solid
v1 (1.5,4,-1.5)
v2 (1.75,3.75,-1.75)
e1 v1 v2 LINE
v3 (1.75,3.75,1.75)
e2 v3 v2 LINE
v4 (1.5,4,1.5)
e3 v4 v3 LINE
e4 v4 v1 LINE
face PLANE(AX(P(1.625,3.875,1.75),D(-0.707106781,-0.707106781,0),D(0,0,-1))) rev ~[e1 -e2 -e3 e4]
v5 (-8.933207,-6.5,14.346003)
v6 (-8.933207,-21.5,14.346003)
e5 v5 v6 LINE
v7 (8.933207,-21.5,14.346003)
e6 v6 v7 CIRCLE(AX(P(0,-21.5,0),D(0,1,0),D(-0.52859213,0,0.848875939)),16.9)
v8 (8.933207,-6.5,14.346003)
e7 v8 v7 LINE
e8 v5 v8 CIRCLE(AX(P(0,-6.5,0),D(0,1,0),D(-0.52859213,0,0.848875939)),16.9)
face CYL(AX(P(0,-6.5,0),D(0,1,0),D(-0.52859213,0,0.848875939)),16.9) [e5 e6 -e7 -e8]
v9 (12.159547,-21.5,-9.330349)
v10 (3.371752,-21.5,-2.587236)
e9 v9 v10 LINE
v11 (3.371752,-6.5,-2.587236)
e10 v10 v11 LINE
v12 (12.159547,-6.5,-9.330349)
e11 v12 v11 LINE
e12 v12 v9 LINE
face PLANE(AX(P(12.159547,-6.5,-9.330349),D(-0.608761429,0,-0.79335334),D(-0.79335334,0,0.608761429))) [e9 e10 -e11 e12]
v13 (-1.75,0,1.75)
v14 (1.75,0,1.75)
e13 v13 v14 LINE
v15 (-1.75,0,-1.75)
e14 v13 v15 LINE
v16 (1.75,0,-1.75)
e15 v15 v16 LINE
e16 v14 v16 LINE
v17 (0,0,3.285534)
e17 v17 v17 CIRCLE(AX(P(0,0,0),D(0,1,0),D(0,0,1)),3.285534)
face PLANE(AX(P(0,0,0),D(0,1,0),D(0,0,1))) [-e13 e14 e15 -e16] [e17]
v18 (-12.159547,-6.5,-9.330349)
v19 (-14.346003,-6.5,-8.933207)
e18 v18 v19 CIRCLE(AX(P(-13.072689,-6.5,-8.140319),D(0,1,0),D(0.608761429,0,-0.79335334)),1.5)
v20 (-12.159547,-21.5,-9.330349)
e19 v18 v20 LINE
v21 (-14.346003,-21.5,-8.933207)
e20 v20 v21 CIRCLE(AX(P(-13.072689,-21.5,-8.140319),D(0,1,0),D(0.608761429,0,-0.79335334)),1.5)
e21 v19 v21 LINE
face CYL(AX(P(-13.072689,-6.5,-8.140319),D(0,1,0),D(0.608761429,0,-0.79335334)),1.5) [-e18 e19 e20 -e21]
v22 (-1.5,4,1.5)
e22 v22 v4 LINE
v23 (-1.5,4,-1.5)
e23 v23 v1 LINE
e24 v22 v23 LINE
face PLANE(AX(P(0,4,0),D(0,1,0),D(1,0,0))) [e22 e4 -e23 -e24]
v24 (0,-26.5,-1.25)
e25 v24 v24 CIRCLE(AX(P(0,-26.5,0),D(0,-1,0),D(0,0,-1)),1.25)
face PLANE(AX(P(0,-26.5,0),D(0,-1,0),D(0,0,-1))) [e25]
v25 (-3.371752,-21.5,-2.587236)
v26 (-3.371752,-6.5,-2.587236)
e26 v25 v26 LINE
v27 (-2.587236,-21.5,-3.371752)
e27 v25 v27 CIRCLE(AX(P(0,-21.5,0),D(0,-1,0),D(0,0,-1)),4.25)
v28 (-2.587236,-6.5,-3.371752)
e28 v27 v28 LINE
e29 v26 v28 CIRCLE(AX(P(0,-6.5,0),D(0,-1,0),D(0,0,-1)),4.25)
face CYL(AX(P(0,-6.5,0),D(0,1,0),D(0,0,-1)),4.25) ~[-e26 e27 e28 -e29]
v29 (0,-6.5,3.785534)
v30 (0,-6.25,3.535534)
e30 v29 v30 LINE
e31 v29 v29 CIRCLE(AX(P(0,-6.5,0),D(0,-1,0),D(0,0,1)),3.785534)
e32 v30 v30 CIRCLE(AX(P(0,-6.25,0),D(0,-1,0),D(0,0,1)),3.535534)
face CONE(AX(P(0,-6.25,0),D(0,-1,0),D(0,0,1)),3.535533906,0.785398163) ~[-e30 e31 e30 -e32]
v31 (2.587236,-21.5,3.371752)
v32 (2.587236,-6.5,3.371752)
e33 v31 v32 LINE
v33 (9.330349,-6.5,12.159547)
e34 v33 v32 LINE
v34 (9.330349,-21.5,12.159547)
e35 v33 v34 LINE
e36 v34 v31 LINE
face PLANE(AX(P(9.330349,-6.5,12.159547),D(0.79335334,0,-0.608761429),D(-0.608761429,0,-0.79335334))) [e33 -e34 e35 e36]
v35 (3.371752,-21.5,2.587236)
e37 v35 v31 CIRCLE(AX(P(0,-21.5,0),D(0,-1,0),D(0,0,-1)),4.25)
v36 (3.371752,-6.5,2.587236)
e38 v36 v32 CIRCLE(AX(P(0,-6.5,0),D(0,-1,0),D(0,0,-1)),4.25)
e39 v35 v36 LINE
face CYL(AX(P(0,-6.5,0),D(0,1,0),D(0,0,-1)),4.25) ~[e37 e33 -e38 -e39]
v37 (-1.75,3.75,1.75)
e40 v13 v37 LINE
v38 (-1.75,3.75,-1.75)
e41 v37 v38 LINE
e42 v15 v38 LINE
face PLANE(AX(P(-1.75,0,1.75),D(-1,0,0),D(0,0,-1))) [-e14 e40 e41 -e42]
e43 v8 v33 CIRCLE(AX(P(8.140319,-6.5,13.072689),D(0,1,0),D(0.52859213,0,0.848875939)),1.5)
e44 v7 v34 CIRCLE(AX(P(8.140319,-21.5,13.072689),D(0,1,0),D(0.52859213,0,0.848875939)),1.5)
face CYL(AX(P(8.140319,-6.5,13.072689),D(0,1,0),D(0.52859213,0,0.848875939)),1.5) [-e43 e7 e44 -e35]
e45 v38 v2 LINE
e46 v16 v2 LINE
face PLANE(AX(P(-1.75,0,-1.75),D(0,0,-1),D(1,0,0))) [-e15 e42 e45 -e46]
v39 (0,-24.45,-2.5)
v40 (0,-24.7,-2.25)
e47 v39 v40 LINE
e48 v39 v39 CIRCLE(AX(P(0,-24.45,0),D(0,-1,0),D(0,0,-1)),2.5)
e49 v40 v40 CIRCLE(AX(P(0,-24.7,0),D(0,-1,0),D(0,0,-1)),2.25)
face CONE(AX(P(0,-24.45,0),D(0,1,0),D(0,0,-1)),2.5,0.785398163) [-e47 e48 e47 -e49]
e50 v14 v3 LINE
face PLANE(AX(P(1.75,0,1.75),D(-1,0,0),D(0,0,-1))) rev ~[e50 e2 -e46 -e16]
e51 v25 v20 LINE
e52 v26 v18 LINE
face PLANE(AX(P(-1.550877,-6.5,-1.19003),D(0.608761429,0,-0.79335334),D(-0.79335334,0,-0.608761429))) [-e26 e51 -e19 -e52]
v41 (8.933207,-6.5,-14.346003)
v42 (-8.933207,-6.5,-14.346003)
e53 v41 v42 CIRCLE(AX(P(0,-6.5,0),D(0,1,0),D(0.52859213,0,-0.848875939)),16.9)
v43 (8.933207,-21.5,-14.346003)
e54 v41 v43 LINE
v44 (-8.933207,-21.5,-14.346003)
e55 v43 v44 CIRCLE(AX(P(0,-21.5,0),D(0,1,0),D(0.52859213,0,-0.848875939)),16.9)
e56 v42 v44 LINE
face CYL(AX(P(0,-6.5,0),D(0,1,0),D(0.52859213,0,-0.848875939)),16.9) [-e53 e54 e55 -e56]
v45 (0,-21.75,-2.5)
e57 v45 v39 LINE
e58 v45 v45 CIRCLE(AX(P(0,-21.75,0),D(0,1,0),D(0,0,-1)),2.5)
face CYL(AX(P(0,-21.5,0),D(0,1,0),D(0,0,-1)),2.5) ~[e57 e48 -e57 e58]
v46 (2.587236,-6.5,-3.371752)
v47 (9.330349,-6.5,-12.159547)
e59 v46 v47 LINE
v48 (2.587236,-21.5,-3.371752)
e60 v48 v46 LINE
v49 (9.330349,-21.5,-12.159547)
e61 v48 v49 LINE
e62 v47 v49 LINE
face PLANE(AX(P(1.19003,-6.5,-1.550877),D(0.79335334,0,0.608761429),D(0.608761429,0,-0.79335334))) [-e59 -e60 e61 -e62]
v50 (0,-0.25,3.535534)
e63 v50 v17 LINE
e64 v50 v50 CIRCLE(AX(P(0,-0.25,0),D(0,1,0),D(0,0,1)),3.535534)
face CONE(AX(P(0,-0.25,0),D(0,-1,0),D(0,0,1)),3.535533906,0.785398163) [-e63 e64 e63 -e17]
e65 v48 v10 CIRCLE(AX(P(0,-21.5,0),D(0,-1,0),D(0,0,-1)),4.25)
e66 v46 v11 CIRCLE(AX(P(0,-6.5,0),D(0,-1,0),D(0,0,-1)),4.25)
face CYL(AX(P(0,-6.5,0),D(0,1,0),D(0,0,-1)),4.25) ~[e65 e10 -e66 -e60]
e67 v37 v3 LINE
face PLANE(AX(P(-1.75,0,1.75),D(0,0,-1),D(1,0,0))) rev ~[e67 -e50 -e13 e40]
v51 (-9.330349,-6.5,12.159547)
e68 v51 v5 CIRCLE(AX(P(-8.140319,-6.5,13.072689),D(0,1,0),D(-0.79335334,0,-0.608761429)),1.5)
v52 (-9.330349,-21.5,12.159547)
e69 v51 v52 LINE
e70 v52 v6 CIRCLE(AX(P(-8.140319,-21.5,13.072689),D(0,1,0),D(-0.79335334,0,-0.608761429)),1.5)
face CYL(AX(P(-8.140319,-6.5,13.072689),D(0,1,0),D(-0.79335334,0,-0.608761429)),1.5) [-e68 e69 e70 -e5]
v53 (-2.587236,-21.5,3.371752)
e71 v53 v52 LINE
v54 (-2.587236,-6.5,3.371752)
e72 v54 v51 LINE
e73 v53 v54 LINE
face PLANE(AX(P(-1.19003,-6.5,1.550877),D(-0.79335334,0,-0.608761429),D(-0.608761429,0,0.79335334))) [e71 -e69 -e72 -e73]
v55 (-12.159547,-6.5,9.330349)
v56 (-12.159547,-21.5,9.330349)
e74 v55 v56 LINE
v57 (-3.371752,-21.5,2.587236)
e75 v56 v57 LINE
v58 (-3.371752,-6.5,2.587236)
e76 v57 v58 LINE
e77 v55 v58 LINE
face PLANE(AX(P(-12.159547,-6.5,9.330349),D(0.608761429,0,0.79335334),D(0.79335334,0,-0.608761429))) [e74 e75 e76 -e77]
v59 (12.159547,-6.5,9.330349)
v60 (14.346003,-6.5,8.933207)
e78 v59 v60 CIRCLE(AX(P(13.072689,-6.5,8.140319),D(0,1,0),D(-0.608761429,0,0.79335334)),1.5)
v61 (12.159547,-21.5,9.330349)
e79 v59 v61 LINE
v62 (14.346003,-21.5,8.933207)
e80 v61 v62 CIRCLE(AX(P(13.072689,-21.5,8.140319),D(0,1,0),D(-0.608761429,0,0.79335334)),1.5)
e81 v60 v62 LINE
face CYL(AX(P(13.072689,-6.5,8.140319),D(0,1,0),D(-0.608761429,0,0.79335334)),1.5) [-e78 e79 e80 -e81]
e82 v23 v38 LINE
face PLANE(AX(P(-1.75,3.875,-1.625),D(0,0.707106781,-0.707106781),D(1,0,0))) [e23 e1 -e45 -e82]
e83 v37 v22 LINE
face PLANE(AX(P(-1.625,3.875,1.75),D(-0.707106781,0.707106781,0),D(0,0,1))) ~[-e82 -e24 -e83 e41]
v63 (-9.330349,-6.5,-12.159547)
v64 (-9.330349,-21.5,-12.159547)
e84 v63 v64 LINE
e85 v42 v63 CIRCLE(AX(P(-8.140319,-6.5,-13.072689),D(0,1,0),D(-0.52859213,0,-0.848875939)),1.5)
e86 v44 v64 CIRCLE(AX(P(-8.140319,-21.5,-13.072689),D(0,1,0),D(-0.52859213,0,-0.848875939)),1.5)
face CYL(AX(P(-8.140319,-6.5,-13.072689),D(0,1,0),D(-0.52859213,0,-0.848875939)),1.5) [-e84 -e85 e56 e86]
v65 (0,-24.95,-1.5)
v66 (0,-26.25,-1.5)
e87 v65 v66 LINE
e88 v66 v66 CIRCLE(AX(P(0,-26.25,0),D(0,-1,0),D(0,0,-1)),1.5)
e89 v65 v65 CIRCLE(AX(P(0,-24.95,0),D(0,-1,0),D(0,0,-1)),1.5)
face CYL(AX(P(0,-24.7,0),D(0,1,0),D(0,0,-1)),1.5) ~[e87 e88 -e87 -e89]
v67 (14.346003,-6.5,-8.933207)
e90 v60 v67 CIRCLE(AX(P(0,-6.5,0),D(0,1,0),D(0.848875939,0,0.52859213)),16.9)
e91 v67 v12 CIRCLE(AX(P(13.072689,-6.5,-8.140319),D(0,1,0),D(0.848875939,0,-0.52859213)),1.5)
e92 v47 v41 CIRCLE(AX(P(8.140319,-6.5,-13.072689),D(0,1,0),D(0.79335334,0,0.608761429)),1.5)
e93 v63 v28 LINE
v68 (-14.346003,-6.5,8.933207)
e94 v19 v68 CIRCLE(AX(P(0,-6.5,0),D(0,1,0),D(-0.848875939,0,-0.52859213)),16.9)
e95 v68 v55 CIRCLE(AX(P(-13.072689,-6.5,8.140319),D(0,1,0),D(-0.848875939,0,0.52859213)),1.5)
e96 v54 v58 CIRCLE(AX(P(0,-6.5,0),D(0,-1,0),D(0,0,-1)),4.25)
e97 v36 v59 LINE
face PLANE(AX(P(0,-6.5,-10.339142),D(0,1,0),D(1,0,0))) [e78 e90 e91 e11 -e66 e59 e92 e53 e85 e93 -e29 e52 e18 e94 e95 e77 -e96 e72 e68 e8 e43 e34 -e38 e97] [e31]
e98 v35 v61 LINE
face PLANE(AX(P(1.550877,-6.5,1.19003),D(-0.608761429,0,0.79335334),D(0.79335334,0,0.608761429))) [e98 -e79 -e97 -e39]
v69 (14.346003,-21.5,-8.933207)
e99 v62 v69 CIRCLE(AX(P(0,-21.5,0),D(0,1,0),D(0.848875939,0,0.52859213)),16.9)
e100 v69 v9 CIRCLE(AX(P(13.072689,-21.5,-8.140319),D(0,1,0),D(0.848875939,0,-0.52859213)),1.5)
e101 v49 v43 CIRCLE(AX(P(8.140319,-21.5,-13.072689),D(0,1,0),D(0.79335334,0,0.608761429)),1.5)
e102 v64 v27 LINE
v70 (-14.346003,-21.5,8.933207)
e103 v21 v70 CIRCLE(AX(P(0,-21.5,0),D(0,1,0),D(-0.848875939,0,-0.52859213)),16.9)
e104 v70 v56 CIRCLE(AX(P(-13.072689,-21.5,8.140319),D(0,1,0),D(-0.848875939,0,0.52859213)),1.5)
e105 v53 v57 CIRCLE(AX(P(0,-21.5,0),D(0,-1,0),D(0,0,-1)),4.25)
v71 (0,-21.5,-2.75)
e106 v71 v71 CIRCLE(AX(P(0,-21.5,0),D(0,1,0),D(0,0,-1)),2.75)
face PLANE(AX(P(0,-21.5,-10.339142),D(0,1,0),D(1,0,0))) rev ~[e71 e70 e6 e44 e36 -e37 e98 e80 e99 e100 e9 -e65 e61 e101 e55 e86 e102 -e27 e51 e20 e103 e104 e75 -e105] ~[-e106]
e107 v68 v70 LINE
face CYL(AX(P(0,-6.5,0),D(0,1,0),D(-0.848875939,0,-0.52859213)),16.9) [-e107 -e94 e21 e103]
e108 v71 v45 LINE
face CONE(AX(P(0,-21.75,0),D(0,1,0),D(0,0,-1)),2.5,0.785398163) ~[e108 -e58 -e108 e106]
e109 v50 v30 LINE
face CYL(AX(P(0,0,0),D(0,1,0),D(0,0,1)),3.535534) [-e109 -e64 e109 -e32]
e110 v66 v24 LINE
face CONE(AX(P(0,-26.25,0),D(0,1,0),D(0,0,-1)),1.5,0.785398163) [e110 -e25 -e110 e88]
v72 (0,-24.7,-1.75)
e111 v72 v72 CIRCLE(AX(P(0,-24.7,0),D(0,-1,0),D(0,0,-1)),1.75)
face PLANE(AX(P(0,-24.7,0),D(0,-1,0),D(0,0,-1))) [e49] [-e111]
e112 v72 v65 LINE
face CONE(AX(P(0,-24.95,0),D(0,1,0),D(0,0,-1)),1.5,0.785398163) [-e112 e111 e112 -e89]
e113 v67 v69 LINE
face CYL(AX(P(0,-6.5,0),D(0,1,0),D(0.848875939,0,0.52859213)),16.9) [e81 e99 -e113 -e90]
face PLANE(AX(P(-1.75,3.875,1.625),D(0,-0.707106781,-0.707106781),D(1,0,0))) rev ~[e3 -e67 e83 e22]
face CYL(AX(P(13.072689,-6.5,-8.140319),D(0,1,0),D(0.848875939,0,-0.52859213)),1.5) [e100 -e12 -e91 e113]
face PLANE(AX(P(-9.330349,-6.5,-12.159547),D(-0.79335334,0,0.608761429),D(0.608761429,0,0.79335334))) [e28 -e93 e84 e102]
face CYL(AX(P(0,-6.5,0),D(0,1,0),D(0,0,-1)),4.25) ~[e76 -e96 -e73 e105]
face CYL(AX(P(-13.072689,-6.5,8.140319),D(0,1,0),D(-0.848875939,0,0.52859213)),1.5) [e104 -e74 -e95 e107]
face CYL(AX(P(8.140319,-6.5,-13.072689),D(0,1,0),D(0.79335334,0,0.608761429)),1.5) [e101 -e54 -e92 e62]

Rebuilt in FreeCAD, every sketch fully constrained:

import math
import FreeCAD as App
import Part
import Sketcher
Q = App.Units.Quantity


def edges_at(feature, points):
    """Names of the edges that pass closest to the given points."""
    edges = feature.Shape.Edges
    near = lambda p: min(range(len(edges)), key=lambda i: edges[i].distToShape(Part.Vertex(*p))[0])
    return sorted({f"Edge{near(p) + 1}" for p in points})


def add_polygon(sketch, points):
    """Adds a closed chain of lines whose ends are joined by coincident constraints."""
    first, n = sketch.GeometryCount, len(points)
    for a, b in zip(points, points[1:] + points[:1]):
        sketch.addGeometry(Part.LineSegment(App.Vector(*a, 0), App.Vector(*b, 0)), False)
    for i in range(n):
        sketch.addConstraint(Sketcher.Constraint("Coincident", first + i, 2, first + (i + 1) % n, 1))

doc = App.newDocument("Part")
body = doc.addObject("PartDesign::Body", "Body")

# Sketch on XZ plane
sketch1 = body.newObject("Sketcher::SketchObject", "Sketch")
sketch1.AttachmentSupport = (doc.getObject("XZ_Plane"), [""])
sketch1.MapMode = "FlatFace"
sketch1.addGeometry(Part.Circle(App.Vector(0, 0, 0), App.Vector(0, 0, 1), 3.5), False)
sketch1.addConstraint([
    Sketcher.Constraint("Coincident", 0, 3, -1, 1),
    Sketcher.Constraint("Diameter", 0, 7.071068),
])
pad1 = body.newObject("PartDesign::Pad", "Pad")
pad1.Profile = sketch1
pad1.Length = 6.5

# Sketch on XZ plane
sketch2 = body.newObject("Sketcher::SketchObject", "Sketch001")
sketch2.AttachmentSupport = (doc.getObject("XZ_Plane"), [""])
sketch2.MapMode = "FlatFace"
add_polygon(sketch2, [(-1.8, -1.8), (-1.8, 1.8), (1.8, 1.8), (1.8, -1.8)])  # lines 0-3
sketch2.addConstraint([
    Sketcher.Constraint("Vertical", 0),
    Sketcher.Constraint("Horizontal", 1),
    Sketcher.Constraint("Vertical", 2),
    Sketcher.Constraint("Horizontal", 3),
    Sketcher.Constraint("Symmetric", 0, 2, 2, 2, -1, 1),
    Sketcher.Constraint("Equal", 3, 0),
    Sketcher.Constraint("DistanceX", 1, 1, 1, 2, 3.5),
])
pad2 = body.newObject("PartDesign::Pad", "Pad001")
pad2.Profile = sketch2
pad2.Length = 4
pad2.Reversed = True

# Sketch on XZ plane
sketch3 = body.newObject("Sketcher::SketchObject", "Sketch002")
sketch3.AttachmentSupport = (doc.getObject("XZ_Plane"), [""])
sketch3.MapMode = "FlatFace"
sketch3.AttachmentOffset = App.Placement(App.Vector(0, 0, 6.5), App.Rotation())
sketch3.addGeometry(Part.Circle(App.Vector(0, 0, 0), App.Vector(0, 0, 1), 4.2), False)
sketch3.addConstraint([
    Sketcher.Constraint("Coincident", 0, 3, -1, 1),
    Sketcher.Constraint("Diameter", 0, 8.5),
])
pad3 = body.newObject("PartDesign::Pad", "Pad002")
pad3.Profile = sketch3
pad3.Length = 15

# Sketch on XZ plane
sketch4 = body.newObject("Sketcher::SketchObject", "Sketch003")
sketch4.AttachmentSupport = (doc.getObject("XZ_Plane"), [""])
sketch4.MapMode = "FlatFace"
sketch4.AttachmentOffset = App.Placement(App.Vector(0, 0, 21.5), App.Rotation())
sketch4.addGeometry(Part.Circle(App.Vector(0, 0, 0), App.Vector(0, 0, 1), 2.5), False)
sketch4.addConstraint([
    Sketcher.Constraint("Coincident", 0, 3, -1, 1),
    Sketcher.Constraint("Diameter", 0, 5.0),
])
pad4 = body.newObject("PartDesign::Pad", "Pad003")
pad4.Profile = sketch4
pad4.Length = 3.2

# Sketch on XZ plane
sketch5 = body.newObject("Sketcher::SketchObject", "Sketch004")
sketch5.AttachmentSupport = (doc.getObject("XZ_Plane"), [""])
sketch5.MapMode = "FlatFace"
sketch5.AttachmentOffset = App.Placement(App.Vector(0, 0, 24.7), App.Rotation())
sketch5.addGeometry(Part.Circle(App.Vector(0, 0, 0), App.Vector(0, 0, 1), 1.5), False)
sketch5.addConstraint([
    Sketcher.Constraint("Coincident", 0, 3, -1, 1),
    Sketcher.Constraint("Diameter", 0, 3.0),
])
pad5 = body.newObject("PartDesign::Pad", "Pad004")
pad5.Profile = sketch5
pad5.Length = 1.8

# Sketch on XZ plane
sketch6 = body.newObject("Sketcher::SketchObject", "Sketch005")
sketch6.AttachmentSupport = (doc.getObject("XZ_Plane"), [""])
sketch6.MapMode = "FlatFace"
sketch6.AttachmentOffset = App.Placement(App.Vector(0, 0, 6.5), App.Rotation())
sketch6.addGeometry([
    Part.LineSegment(App.Vector(-9.3, -12.2, 0), App.Vector(-1.2, -1.6, 0)),  # 0
    Part.ArcOfCircle(Part.Circle(App.Vector(0, -2.5, 0), App.Vector(0, 0, 1), 1.5), math.radians(38), math.radians(142)),  # 1
    Part.LineSegment(App.Vector(1.2, -1.6, 0), App.Vector(9.3, -12.2, 0)),  # 2
    Part.ArcOfCircle(Part.Circle(App.Vector(8.1, -13.1, 0), App.Vector(0, 0, 1), 1.5), math.radians(-58), math.radians(38)),  # 3
    Part.ArcOfCircle(Part.Circle(App.Vector(0, 0, 0), App.Vector(0, 0, 1), 16.9), math.radians(-122), math.radians(-58)),  # 4
    Part.ArcOfCircle(Part.Circle(App.Vector(-8.1, -13.1, 0), App.Vector(0, 0, 1), 1.5), math.radians(142), math.radians(238)),  # 5
    Part.LineSegment(App.Vector(12.2, -9.3, 0), App.Vector(1.6, -1.2, 0)),  # 6
    Part.ArcOfCircle(Part.Circle(App.Vector(2.5, 0, 0), App.Vector(0, 0, 1), 1.5), math.radians(128), math.radians(232)),  # 7
    Part.LineSegment(App.Vector(1.6, 1.2, 0), App.Vector(12.2, 9.3, 0)),  # 8
    Part.ArcOfCircle(Part.Circle(App.Vector(13.1, 8.1, 0), App.Vector(0, 0, 1), 1.5), math.radians(32), math.radians(128)),  # 9
    Part.ArcOfCircle(Part.Circle(App.Vector(0, 0, 0), App.Vector(0, 0, 1), 16.9), math.radians(-32), math.radians(32)),  # 10
    Part.ArcOfCircle(Part.Circle(App.Vector(13.1, -8.1, 0), App.Vector(0, 0, 1), 1.5), math.radians(-128), math.radians(-32)),  # 11
    Part.LineSegment(App.Vector(9.3, 12.2, 0), App.Vector(1.2, 1.6, 0)),  # 12
    Part.ArcOfCircle(Part.Circle(App.Vector(0, 2.5, 0), App.Vector(0, 0, 1), 1.5), math.radians(-142), math.radians(-38)),  # 13
    Part.LineSegment(App.Vector(-1.2, 1.6, 0), App.Vector(-9.3, 12.2, 0)),  # 14
    Part.ArcOfCircle(Part.Circle(App.Vector(-8.1, 13.1, 0), App.Vector(0, 0, 1), 1.5), math.radians(122), math.radians(218)),  # 15
    Part.ArcOfCircle(Part.Circle(App.Vector(0, 0, 0), App.Vector(0, 0, 1), 16.9), math.radians(58), math.radians(122)),  # 16
    Part.ArcOfCircle(Part.Circle(App.Vector(8.1, 13.1, 0), App.Vector(0, 0, 1), 1.5), math.radians(-38), math.radians(58)),  # 17
    Part.LineSegment(App.Vector(-12.2, 9.3, 0), App.Vector(-1.6, 1.2, 0)),  # 18
    Part.ArcOfCircle(Part.Circle(App.Vector(-2.5, 0, 0), App.Vector(0, 0, 1), 1.5), math.radians(-52), math.radians(52)),  # 19
    Part.LineSegment(App.Vector(-1.6, -1.2, 0), App.Vector(-12.2, -9.3, 0)),  # 20
    Part.ArcOfCircle(Part.Circle(App.Vector(-13.1, -8.1, 0), App.Vector(0, 0, 1), 1.5), math.radians(-148), math.radians(-52)),  # 21
    Part.ArcOfCircle(Part.Circle(App.Vector(0, 0, 0), App.Vector(0, 0, 1), 16.9), math.radians(148), math.radians(212)),  # 22
    Part.ArcOfCircle(Part.Circle(App.Vector(-13.1, 8.1, 0), App.Vector(0, 0, 1), 1.5), math.radians(52), math.radians(148)),  # 23
], False)
sketch6.addConstraint([
    Sketcher.Constraint("Tangent", 0, 2, 1, 2),
    Sketcher.Constraint("Tangent", 1, 1, 2, 1),
    Sketcher.Constraint("Tangent", 2, 2, 3, 2),
    Sketcher.Constraint("Tangent", 3, 1, 4, 2),
    Sketcher.Constraint("Tangent", 4, 1, 5, 2),
    Sketcher.Constraint("Tangent", 5, 1, 0, 1),
    Sketcher.Constraint("Tangent", 6, 2, 7, 2),
    Sketcher.Constraint("Tangent", 7, 1, 8, 1),
    Sketcher.Constraint("Tangent", 8, 2, 9, 2),
    Sketcher.Constraint("Tangent", 9, 1, 10, 2),
    Sketcher.Constraint("Tangent", 10, 1, 11, 2),
    Sketcher.Constraint("Tangent", 11, 1, 6, 1),
    Sketcher.Constraint("Tangent", 12, 2, 13, 2),
    Sketcher.Constraint("Tangent", 13, 1, 14, 1),
    Sketcher.Constraint("Tangent", 14, 2, 15, 2),
    Sketcher.Constraint("Tangent", 15, 1, 16, 2),
    Sketcher.Constraint("Tangent", 16, 1, 17, 2),
    Sketcher.Constraint("Tangent", 17, 1, 12, 1),
    Sketcher.Constraint("Tangent", 18, 2, 19, 2),
    Sketcher.Constraint("Tangent", 19, 1, 20, 1),
    Sketcher.Constraint("Tangent", 20, 2, 21, 2),
    Sketcher.Constraint("Tangent", 21, 1, 22, 2),
    Sketcher.Constraint("Tangent", 22, 1, 23, 2),
    Sketcher.Constraint("Tangent", 23, 1, 18, 1),
    Sketcher.Constraint("Coincident", 4, 3, -1, 1),
    Sketcher.Constraint("Coincident", 10, 3, -1, 1),
    Sketcher.Constraint("Coincident", 16, 3, -1, 1),
    Sketcher.Constraint("Coincident", 22, 3, -1, 1),
    Sketcher.Constraint("Equal", 1, 3),
    Sketcher.Constraint("Equal", 3, 5),
    Sketcher.Constraint("Equal", 5, 7),
    Sketcher.Constraint("Equal", 7, 9),
    Sketcher.Constraint("Equal", 4, 10),
    Sketcher.Constraint("Equal", 9, 11),
    Sketcher.Constraint("Equal", 11, 13),
    Sketcher.Constraint("Equal", 13, 15),
    Sketcher.Constraint("Equal", 10, 16),
    Sketcher.Constraint("Equal", 15, 17),
    Sketcher.Constraint("Equal", 17, 19),
    Sketcher.Constraint("Equal", 19, 21),
    Sketcher.Constraint("Equal", 16, 22),
    Sketcher.Constraint("Equal", 21, 23),
    Sketcher.Constraint("Symmetric", 1, 3, 13, 3, -1, 1),
    Sketcher.Constraint("Symmetric", 7, 3, 19, 3, -1, 1),
    Sketcher.Constraint("Symmetric", 0, 2, 1, 1, -2),
    Sketcher.Constraint("Symmetric", 7, 1, 18, 2, -2),
    Sketcher.Constraint("Perpendicular", 0, 6),
    Sketcher.Constraint("Perpendicular", 2, 8),
    Sketcher.Constraint("Perpendicular", 6, 12),
    Sketcher.Constraint("Perpendicular", 8, 14),
    Sketcher.Constraint("Perpendicular", 14, 20),
    Sketcher.Constraint("Equal", 2, 6),
    Sketcher.Constraint("Radius", 1, 1.5),
    Sketcher.Constraint("Radius", 4, 16.9),
    Sketcher.Constraint("Angle", 0, Q("52.5 deg")),
    Sketcher.Constraint("DistanceX", 7, 3, 3, 3, 5.676299),
])
pad6 = body.newObject("PartDesign::Pad", "Pad005")
pad6.Profile = sketch6
pad6.Length = 15
doc.recompute()

chamfer = body.newObject("PartDesign::Chamfer", "Chamfer")
chamfer.Base = (pad6, edges_at(pad6, [
    (0, -6.5, -3.536),
    (0, 0, -3.536),
    (0, -21.5, 2.5),
    (0, -24.7, 2.5),
    (0, -24.7, 1.5),
    (0, -26.5, 1.5),
    (1.75, 4, 0),
    (0, 4, -1.75),
    (-1.75, 4, 0),
    (0, 4, 1.75),
]))
chamfer.Size = 0.25

doc.recompute()
